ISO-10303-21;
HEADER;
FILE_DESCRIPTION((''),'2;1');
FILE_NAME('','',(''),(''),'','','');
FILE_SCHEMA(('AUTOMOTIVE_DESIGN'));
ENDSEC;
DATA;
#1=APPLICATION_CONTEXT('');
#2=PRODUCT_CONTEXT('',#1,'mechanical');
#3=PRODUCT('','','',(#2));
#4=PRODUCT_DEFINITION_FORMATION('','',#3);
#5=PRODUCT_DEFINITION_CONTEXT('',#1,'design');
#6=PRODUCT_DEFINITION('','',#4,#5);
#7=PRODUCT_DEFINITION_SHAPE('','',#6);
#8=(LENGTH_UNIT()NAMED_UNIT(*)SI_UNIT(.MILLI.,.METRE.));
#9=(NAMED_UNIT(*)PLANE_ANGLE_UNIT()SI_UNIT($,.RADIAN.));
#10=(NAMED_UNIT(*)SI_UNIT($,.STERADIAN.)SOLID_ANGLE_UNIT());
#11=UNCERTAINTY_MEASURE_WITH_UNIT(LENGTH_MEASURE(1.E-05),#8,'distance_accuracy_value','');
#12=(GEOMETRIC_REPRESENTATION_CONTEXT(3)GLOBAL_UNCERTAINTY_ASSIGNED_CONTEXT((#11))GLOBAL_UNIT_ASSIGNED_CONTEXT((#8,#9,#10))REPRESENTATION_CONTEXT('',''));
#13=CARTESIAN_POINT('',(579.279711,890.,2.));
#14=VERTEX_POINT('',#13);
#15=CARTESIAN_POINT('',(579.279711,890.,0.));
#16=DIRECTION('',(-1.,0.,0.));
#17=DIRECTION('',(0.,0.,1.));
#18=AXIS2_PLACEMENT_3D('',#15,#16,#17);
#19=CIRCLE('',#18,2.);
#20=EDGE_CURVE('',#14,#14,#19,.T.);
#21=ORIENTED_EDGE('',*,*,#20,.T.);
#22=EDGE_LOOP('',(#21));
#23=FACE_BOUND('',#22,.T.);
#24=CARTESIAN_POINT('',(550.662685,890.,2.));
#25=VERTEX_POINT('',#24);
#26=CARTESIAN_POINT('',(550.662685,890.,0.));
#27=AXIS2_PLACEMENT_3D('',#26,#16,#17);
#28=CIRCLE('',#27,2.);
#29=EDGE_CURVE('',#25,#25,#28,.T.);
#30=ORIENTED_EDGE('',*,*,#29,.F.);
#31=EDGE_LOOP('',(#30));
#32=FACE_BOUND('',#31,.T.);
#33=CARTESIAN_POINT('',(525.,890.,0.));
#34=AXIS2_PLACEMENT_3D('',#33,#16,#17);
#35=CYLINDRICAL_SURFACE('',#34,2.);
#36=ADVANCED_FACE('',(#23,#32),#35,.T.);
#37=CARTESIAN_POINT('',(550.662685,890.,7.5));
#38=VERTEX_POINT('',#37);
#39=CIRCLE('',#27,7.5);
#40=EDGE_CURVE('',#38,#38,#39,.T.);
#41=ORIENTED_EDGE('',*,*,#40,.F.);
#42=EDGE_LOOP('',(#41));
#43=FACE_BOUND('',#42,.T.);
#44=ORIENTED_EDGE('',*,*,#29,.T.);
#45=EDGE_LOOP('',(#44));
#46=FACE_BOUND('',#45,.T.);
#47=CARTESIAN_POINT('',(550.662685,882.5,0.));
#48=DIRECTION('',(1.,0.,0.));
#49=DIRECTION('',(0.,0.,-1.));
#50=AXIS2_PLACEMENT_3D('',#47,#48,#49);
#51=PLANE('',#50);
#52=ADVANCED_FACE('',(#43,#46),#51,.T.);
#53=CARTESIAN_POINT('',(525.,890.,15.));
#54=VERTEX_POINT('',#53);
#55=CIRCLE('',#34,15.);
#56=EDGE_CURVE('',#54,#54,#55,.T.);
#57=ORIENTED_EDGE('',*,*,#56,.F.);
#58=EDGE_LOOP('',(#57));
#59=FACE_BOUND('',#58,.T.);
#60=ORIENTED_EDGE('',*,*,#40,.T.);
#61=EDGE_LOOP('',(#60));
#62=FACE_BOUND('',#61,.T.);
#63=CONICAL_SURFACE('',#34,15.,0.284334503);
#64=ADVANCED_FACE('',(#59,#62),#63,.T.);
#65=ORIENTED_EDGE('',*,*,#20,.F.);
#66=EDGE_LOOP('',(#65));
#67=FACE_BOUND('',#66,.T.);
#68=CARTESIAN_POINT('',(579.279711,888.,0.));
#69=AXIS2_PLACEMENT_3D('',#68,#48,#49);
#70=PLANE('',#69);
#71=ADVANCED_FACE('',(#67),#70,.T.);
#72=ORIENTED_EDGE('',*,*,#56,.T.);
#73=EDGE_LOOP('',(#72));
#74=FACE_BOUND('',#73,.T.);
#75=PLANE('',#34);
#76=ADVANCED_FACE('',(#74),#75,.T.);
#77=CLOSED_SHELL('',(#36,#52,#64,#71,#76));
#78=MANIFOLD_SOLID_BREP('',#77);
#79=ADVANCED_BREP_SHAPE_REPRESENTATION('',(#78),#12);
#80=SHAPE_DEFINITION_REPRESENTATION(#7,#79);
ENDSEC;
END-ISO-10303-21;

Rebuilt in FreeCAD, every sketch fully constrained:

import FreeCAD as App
import Part
import Sketcher

V = App.Vector

doc = App.newDocument("Part")
body = doc.addObject("PartDesign::Body", "Body")

# Sketch on XY plane
sketch1 = body.newObject("Sketcher::SketchObject", "Sketch")
sketch1.AttachmentSupport = (doc.getObject("XY_Plane"), [""])
sketch1.MapMode = "FlatFace"
sketch1.addGeometry([
    Part.LineSegment(V(525, 890, 0), V(525, 875, 0)),  # 0
    Part.LineSegment(V(525, 875, 0), V(550.662685, 882.5, 0)),  # 1
    Part.LineSegment(V(550.662685, 882.5, 0), V(550.662685, 888, 0)),  # 2
    Part.LineSegment(V(550.662685, 888, 0), V(579.279711, 888, 0)),  # 3
    Part.LineSegment(V(579.279711, 888, 0), V(579.279711, 890, 0)),  # 4
    Part.LineSegment(V(579.279711, 890, 0), V(525, 890, 0)),  # 5
], False)
sketch1.addGeometry(Part.LineSegment(V(525, 890, 0), V(579.279711, 890, 0)), True)  # axis
sketch1.addConstraint([
    Sketcher.Constraint("Coincident", 0, 2, 1, 1),
    Sketcher.Constraint("Coincident", 1, 2, 2, 1),
    Sketcher.Constraint("Coincident", 2, 2, 3, 1),
    Sketcher.Constraint("Coincident", 3, 2, 4, 1),
    Sketcher.Constraint("Coincident", 4, 2, 5, 1),
    Sketcher.Constraint("Coincident", 5, 2, 0, 1),
    Sketcher.Constraint("Vertical", 0),
    Sketcher.Constraint("Vertical", 2),
    Sketcher.Constraint("Horizontal", 3),
    Sketcher.Constraint("Vertical", 4),
    Sketcher.Constraint("Horizontal", 5),
    Sketcher.Constraint("Horizontal", 6),
    Sketcher.Constraint("Coincident", 6, 1, 5, 2),
    Sketcher.Constraint("Vertical", 3, 2, 6, 2),
    Sketcher.Constraint("DistanceY", 0, 2, 0, 1, 15.0),
    Sketcher.Constraint("DistanceY", 4, 1, 4, 2, 2.0),
    Sketcher.Constraint("DistanceY", 2, 1, 2, 2, 5.5),
    Sketcher.Constraint("DistanceX", -1, 1, 0, 2, 525.0),
    Sketcher.Constraint("DistanceY", -1, 1, 0, 2, 875.0),
    Sketcher.Constraint("DistanceX", 5, 2, 5, 1, 54.279711),
    Sketcher.Constraint("Distance", 1, 26.736182),
])
revolution = body.newObject("PartDesign::Revolution", "Revolution")
revolution.Profile = sketch1
revolution.ReferenceAxis = (sketch1, ["Axis0"])
revolution.Angle = 360

doc.recompute()
